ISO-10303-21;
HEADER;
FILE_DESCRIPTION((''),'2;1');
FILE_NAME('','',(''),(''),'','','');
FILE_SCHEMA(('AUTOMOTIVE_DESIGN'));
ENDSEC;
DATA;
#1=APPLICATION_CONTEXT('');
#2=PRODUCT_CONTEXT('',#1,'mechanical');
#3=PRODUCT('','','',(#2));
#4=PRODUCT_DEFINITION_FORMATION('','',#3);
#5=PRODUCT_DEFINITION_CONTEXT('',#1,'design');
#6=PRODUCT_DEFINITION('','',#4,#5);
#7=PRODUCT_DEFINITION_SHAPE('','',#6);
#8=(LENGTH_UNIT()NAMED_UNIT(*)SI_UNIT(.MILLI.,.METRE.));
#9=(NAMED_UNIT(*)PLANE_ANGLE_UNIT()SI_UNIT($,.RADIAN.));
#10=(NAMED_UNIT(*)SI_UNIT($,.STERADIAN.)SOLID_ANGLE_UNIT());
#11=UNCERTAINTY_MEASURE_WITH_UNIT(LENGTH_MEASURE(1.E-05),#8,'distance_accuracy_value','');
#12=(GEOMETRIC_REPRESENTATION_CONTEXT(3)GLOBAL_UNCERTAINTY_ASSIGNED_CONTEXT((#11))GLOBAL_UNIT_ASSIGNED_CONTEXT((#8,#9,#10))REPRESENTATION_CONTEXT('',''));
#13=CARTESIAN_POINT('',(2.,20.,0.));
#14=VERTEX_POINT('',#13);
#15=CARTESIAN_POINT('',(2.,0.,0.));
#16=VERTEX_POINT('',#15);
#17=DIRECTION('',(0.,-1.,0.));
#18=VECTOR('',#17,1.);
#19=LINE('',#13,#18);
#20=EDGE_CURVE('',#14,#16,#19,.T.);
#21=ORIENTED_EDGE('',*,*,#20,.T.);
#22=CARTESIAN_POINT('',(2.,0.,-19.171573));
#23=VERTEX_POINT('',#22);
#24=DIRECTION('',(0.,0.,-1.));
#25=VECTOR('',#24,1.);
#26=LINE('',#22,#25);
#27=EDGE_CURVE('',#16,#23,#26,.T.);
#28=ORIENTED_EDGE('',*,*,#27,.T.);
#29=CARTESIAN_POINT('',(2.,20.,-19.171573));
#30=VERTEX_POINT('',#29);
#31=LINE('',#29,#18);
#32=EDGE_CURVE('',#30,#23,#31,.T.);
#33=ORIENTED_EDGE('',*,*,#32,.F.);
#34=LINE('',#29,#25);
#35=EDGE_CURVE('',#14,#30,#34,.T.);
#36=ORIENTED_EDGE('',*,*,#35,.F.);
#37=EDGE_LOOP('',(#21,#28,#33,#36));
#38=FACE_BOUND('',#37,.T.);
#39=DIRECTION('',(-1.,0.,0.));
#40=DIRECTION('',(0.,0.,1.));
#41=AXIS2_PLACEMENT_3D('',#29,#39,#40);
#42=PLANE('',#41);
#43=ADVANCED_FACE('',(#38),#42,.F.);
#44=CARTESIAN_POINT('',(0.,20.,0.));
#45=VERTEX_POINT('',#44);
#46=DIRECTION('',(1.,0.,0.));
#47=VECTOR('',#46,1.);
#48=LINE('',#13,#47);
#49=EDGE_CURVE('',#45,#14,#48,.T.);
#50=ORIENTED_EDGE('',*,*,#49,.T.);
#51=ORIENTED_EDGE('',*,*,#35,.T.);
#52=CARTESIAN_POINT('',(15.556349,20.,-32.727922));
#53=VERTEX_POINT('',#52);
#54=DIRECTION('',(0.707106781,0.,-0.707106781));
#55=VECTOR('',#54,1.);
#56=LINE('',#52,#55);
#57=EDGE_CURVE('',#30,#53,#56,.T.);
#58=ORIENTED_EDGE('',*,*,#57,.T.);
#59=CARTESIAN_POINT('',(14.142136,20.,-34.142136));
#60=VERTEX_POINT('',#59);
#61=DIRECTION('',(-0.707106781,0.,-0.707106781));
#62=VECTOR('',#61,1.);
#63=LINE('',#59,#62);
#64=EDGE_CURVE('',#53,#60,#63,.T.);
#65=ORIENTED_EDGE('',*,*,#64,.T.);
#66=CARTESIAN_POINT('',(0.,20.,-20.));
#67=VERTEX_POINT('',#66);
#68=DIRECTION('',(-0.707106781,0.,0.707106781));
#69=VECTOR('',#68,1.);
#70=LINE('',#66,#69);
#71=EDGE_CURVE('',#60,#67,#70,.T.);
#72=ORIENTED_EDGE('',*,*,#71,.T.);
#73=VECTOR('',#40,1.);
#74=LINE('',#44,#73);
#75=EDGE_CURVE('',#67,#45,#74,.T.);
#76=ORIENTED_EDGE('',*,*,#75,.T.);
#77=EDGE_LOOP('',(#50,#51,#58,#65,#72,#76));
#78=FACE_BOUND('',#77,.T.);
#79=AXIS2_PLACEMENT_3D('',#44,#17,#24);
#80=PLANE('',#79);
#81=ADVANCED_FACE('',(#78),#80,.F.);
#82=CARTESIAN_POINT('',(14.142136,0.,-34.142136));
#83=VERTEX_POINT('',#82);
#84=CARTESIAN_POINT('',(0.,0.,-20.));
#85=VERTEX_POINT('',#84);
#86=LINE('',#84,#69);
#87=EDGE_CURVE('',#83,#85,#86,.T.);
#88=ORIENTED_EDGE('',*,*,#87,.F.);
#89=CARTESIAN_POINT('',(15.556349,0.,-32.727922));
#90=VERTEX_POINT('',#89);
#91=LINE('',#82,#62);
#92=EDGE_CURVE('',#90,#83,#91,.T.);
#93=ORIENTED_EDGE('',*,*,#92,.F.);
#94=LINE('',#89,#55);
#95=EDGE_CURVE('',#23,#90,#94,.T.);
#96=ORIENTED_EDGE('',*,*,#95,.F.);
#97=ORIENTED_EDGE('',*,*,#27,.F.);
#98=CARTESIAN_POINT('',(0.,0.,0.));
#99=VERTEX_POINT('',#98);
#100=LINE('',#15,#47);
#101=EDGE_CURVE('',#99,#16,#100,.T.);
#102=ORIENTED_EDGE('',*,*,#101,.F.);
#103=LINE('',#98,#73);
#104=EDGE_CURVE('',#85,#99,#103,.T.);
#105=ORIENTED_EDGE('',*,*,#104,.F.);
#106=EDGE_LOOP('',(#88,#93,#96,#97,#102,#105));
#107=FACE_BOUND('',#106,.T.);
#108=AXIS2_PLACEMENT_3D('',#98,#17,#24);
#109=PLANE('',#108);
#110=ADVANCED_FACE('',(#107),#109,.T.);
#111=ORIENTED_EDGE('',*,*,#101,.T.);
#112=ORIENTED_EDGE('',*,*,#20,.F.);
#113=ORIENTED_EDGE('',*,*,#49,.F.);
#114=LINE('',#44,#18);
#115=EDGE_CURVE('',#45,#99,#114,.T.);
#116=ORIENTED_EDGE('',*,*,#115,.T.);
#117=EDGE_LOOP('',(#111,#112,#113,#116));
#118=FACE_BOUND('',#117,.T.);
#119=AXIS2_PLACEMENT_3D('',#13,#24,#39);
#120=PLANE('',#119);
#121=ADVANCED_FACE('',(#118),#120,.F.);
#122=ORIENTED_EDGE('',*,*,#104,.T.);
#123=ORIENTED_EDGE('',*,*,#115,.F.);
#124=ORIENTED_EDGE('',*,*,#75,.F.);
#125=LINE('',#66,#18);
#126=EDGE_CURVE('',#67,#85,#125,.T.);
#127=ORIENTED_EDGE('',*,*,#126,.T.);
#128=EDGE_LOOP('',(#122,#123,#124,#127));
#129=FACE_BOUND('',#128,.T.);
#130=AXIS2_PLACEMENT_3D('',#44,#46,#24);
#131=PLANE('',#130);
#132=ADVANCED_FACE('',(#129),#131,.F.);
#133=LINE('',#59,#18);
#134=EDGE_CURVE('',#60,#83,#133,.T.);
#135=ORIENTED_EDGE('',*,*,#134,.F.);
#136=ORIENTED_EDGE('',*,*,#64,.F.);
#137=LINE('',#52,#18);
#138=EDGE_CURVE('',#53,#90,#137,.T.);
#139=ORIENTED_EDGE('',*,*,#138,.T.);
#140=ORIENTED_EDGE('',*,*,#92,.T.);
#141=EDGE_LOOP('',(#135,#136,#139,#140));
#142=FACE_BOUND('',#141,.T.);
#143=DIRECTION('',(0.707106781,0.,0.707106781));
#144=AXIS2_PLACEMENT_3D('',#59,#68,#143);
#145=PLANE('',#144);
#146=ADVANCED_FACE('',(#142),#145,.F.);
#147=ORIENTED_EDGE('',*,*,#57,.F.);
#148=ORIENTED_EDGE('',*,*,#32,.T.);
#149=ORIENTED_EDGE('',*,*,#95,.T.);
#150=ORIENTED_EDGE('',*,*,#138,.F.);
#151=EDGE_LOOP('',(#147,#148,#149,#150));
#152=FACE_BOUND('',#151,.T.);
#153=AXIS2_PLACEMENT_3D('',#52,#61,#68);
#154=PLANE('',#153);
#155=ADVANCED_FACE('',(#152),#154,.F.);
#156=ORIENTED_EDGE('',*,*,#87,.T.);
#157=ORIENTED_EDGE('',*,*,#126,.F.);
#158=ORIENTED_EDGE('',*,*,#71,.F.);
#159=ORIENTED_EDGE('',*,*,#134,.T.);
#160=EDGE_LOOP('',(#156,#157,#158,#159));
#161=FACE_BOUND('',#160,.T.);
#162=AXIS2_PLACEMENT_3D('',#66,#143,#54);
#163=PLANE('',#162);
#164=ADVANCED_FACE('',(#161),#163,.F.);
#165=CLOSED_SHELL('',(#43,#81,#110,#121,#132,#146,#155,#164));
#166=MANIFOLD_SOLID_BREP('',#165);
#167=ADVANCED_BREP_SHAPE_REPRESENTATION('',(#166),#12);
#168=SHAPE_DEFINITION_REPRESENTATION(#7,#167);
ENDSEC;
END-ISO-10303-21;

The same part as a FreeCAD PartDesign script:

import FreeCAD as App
import Part
import Sketcher
Q = App.Units.Quantity

doc = App.newDocument("Part")
body = doc.addObject("PartDesign::Body", "Body")

# Sketch on XZ plane
sketch1 = body.newObject("Sketcher::SketchObject", "Sketch")
sketch1.AttachmentSupport = (doc.getObject("XZ_Plane"), [""])
sketch1.MapMode = "FlatFace"
sketch1.addGeometry([
    Part.LineSegment(App.Vector(0, -20, 0), App.Vector(0, 0, 0)),  # 0
    Part.LineSegment(App.Vector(0, 0, 0), App.Vector(2, 0, 0)),  # 1
    Part.LineSegment(App.Vector(2, 0, 0), App.Vector(2, -19.2, 0)),  # 2
    Part.LineSegment(App.Vector(2, -19.2, 0), App.Vector(15.6, -32.7, 0)),  # 3
    Part.LineSegment(App.Vector(15.6, -32.7, 0), App.Vector(14.1, -34.1, 0)),  # 4
    Part.LineSegment(App.Vector(14.1, -34.1, 0), App.Vector(0, -20, 0)),  # 5
], False)
sketch1.addConstraint([
    Sketcher.Constraint("Coincident", 0, 2, 1, 1),
    Sketcher.Constraint("Coincident", 1, 2, 2, 1),
    Sketcher.Constraint("Coincident", 2, 2, 3, 1),
    Sketcher.Constraint("Coincident", 3, 2, 4, 1),
    Sketcher.Constraint("Coincident", 4, 2, 5, 1),
    Sketcher.Constraint("Coincident", 5, 2, 0, 1),
    Sketcher.Constraint("Vertical", 0),
    Sketcher.Constraint("Horizontal", 1),
    Sketcher.Constraint("Vertical", 2),
    Sketcher.Constraint("Coincident", 0, 2, -1, 1),
    Sketcher.Constraint("Perpendicular", 3, 4),
    Sketcher.Constraint("Perpendicular", 4, 5),
    Sketcher.Constraint("DistanceX", 1, 1, 1, 2, 2.0),
    Sketcher.Constraint("DistanceY", 0, 1, 0, 2, 20.0),
    Sketcher.Constraint("Angle", 3, Q("-45 deg")),
    Sketcher.Constraint("Distance", 4, 2.0),
    Sketcher.Constraint("Distance", 5, 20.0),
])
pad1 = body.newObject("PartDesign::Pad", "Pad")
pad1.Profile = sketch1
pad1.Length = 20
pad1.Reversed = True

doc.recompute()
